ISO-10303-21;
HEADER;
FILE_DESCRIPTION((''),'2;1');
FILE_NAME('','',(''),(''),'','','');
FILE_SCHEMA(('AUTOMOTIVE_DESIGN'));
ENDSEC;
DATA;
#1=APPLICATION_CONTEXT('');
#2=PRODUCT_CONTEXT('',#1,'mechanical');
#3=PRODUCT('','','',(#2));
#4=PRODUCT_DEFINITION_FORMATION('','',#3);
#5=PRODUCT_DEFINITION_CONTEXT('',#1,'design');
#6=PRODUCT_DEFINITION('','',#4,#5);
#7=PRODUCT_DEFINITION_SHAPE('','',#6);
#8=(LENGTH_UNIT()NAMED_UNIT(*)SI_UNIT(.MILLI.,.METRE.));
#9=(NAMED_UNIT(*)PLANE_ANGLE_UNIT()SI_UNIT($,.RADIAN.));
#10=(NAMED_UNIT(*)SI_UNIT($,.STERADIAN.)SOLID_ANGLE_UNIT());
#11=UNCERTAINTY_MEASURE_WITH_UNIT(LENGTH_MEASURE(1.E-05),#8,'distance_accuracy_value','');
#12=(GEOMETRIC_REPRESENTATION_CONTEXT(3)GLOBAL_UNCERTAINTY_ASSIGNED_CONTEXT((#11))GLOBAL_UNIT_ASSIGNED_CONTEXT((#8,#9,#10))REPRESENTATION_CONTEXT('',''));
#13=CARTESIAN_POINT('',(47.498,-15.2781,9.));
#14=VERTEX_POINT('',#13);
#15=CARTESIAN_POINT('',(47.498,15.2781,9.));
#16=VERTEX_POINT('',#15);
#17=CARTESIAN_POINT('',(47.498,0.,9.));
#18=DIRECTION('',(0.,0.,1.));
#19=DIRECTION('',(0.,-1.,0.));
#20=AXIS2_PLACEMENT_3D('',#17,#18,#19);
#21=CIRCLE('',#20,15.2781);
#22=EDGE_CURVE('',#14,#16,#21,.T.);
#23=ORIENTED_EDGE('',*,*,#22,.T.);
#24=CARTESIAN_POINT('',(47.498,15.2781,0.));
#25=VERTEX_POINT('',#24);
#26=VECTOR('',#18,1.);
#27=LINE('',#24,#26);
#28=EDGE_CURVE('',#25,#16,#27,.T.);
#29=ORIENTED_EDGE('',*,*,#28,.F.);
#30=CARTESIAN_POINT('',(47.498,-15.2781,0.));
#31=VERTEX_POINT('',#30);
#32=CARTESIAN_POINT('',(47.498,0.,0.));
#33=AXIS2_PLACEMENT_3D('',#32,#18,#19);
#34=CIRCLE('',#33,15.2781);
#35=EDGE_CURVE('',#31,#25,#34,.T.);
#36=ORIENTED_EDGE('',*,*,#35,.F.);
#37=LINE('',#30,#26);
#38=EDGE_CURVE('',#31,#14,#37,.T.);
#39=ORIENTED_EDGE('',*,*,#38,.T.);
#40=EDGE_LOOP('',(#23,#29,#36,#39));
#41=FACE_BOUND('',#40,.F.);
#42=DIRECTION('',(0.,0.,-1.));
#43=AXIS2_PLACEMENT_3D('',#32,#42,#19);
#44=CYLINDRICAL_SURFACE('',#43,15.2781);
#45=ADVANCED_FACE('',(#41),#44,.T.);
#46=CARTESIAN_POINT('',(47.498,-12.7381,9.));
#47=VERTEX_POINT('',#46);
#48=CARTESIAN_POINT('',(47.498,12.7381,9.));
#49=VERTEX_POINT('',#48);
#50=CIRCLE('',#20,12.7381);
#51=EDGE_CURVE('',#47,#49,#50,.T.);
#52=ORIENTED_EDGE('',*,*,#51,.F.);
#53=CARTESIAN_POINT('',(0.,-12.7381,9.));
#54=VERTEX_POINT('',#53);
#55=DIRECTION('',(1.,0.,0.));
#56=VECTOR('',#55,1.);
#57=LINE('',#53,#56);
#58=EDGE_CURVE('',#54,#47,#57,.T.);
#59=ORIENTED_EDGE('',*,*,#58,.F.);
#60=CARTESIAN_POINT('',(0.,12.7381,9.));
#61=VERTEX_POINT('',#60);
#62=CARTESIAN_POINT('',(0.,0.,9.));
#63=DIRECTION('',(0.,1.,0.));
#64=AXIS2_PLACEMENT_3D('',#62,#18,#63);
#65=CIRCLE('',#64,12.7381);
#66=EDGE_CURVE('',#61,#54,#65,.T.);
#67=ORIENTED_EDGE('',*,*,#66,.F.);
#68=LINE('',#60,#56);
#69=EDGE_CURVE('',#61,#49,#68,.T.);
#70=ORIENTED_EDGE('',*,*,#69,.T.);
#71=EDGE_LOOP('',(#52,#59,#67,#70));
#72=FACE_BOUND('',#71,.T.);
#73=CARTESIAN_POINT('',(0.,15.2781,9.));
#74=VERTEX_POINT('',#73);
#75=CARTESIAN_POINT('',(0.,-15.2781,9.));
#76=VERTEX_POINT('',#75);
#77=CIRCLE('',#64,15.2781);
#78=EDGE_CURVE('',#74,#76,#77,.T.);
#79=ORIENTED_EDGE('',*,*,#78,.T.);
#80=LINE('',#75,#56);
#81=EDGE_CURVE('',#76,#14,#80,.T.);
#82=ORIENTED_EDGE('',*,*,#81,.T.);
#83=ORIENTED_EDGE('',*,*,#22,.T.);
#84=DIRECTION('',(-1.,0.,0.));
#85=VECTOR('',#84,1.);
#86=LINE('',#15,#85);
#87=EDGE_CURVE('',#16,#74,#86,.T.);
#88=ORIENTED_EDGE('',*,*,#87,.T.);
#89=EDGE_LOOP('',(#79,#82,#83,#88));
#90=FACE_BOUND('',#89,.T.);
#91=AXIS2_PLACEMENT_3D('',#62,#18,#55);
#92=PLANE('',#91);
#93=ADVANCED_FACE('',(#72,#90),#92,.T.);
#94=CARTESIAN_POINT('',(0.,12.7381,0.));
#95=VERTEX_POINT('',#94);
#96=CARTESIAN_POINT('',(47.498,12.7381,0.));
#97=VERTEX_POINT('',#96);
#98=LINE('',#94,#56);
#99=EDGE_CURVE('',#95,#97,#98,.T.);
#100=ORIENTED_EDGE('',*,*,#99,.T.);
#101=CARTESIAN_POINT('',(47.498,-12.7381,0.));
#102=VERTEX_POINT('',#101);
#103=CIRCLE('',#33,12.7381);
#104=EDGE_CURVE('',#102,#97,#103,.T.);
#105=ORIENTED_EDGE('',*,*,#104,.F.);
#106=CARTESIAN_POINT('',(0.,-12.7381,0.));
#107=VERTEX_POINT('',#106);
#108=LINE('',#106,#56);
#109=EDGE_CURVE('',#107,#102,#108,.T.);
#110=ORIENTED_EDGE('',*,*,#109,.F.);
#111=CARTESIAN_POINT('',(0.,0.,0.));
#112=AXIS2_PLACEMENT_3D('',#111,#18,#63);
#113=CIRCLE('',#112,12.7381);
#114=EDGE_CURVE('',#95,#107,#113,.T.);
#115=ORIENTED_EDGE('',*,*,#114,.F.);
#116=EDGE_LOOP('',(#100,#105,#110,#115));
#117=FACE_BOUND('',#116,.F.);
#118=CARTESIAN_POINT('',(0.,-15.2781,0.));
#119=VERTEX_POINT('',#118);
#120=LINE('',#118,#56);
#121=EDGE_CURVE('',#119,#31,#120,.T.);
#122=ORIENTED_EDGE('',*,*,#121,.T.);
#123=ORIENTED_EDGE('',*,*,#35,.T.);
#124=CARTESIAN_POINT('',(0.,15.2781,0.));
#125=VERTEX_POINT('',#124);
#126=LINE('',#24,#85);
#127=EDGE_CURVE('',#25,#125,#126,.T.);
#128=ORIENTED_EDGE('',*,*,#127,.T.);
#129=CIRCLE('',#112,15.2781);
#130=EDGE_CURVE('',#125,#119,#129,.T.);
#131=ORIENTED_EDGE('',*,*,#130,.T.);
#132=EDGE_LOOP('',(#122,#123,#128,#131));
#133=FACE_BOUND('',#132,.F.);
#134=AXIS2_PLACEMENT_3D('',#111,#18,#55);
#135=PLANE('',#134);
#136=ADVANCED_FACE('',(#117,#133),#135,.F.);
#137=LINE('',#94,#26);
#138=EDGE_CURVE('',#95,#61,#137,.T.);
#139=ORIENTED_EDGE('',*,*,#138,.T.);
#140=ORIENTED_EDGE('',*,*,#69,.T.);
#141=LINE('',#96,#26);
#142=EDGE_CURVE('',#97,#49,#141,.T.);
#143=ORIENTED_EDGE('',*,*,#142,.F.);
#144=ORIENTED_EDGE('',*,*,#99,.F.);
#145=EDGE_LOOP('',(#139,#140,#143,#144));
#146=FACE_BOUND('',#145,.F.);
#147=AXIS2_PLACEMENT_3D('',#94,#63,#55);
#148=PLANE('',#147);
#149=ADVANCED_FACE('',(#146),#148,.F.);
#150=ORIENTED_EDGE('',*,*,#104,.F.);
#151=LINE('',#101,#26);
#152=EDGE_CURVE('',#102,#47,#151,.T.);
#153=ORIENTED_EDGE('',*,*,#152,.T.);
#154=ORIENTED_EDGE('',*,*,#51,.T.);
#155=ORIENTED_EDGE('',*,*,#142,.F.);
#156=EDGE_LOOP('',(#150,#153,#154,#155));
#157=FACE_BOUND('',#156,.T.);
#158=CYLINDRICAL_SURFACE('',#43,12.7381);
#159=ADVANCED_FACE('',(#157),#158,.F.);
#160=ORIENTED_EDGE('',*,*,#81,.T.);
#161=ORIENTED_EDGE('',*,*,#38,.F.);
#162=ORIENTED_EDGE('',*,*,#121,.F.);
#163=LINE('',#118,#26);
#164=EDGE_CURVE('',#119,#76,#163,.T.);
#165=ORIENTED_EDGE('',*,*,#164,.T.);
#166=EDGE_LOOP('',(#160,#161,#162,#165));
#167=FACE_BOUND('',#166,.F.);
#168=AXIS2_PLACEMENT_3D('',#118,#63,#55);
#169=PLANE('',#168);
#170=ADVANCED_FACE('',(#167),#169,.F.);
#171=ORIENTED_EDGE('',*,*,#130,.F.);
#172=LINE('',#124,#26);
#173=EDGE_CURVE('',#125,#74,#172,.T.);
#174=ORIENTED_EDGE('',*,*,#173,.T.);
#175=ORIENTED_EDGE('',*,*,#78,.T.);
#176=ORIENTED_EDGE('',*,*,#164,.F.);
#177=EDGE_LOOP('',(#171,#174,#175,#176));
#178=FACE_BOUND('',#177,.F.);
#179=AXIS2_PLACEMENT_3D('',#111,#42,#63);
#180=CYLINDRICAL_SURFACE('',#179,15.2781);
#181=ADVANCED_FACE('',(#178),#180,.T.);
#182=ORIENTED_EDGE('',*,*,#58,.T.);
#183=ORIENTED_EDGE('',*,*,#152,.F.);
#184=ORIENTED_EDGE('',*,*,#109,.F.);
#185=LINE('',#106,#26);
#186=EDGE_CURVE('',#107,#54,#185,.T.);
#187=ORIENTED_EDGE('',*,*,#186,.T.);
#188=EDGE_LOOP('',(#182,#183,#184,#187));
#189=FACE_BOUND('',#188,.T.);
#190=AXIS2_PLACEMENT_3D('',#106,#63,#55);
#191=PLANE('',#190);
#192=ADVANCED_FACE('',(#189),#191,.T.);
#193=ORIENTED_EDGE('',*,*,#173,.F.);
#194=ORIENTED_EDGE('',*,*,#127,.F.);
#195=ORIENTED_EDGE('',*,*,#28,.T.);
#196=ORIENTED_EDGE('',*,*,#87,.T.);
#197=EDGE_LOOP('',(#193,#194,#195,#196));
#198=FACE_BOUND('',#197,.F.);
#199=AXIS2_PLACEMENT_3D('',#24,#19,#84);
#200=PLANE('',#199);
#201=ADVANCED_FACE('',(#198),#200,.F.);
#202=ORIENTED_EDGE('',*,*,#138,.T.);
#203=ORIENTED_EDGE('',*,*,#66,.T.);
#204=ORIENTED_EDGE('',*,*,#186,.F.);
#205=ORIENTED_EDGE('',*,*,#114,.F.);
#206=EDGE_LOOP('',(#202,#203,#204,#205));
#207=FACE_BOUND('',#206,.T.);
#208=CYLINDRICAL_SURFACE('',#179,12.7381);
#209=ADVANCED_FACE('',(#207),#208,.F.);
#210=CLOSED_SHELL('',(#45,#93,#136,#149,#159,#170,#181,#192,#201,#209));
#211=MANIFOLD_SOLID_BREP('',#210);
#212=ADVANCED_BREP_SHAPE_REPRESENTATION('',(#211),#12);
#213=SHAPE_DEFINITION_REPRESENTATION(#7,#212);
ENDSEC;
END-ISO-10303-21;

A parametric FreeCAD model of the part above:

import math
import FreeCAD as App
import Part
import Sketcher
from FreeCAD import Vector
Q = App.Units.Quantity

doc = App.newDocument("Part")
body = doc.addObject("PartDesign::Body", "Body")

sketch1 = body.newObject("Sketcher::SketchObject", "Sketch")
sketch1.AttachmentSupport = (doc.getObject("XY_Plane"), [""])
sketch1.MapMode = "FlatFace"
sketch1.addGeometry(Part.ArcOfCircle(Part.Circle(Vector(47.498, 0, 0), Vector(0, 0, 1), 15.2781), math.radians(-90), math.radians(90)), False)
sketch1.addGeometry(Part.LineSegment(Vector(47.498, 15.2781, 0), Vector(0, 15.2781, 0)), False)
sketch1.addGeometry(Part.ArcOfCircle(Part.Circle(Vector(0, 0, 0), Vector(0, 0, 1), 15.2781), math.radians(90), math.radians(270)), False)
sketch1.addGeometry(Part.LineSegment(Vector(0, -15.2781, 0), Vector(47.498, -15.2781, 0)), False)
sketch1.addGeometry(Part.ArcOfCircle(Part.Circle(Vector(0, 0, 0), Vector(0, 0, 1), 12.7381), math.radians(90), math.radians(270)), False)
sketch1.addGeometry(Part.LineSegment(Vector(0, 12.7381, 0), Vector(47.498, 12.7381, 0)), False)
sketch1.addGeometry(Part.ArcOfCircle(Part.Circle(Vector(47.498, 0, 0), Vector(0, 0, 1), 12.7381), math.radians(-90), math.radians(90)), False)
sketch1.addGeometry(Part.LineSegment(Vector(47.498, -12.7381, 0), Vector(0, -12.7381, 0)), False)
sketch1.addConstraint(Sketcher.Constraint("Tangent", 0, 2, 1, 1))
sketch1.addConstraint(Sketcher.Constraint("Tangent", 1, 2, 2, 1))
sketch1.addConstraint(Sketcher.Constraint("Tangent", 2, 2, 3, 1))
sketch1.addConstraint(Sketcher.Constraint("Tangent", 3, 2, 0, 1))
sketch1.addConstraint(Sketcher.Constraint("Tangent", 4, 1, 5, 1))
sketch1.addConstraint(Sketcher.Constraint("Tangent", 5, 2, 6, 2))
sketch1.addConstraint(Sketcher.Constraint("Tangent", 6, 1, 7, 1))
sketch1.addConstraint(Sketcher.Constraint("Tangent", 7, 2, 4, 2))
sketch1.addConstraint(Sketcher.Constraint("Horizontal", 1))
sketch1.addConstraint(Sketcher.Constraint("Horizontal", 3))
sketch1.addConstraint(Sketcher.Constraint("Horizontal", 5))
sketch1.addConstraint(Sketcher.Constraint("Horizontal", 7))
sketch1.addConstraint(Sketcher.Constraint("Coincident", 2, 3, -1, 1))
sketch1.addConstraint(Sketcher.Constraint("Coincident", 4, 3, -1, 1))
sketch1.addConstraint(Sketcher.Constraint("Vertical", 6, 3, 0, 2))
sketch1.addConstraint(Sketcher.Constraint("DistanceX", 1, 2, 1, 1, Q("1.87 in")))
sketch1.addConstraint(Sketcher.Constraint("Radius", 4, Q("0.5015 in")))
sketch1.addConstraint(Sketcher.Constraint("DistanceY", 4, 1, 1, 2, Q("0.1 in")))
pad1 = body.newObject("PartDesign::Pad", "Pad")
pad1.Profile = sketch1
pad1.Length = 9

doc.recompute()
